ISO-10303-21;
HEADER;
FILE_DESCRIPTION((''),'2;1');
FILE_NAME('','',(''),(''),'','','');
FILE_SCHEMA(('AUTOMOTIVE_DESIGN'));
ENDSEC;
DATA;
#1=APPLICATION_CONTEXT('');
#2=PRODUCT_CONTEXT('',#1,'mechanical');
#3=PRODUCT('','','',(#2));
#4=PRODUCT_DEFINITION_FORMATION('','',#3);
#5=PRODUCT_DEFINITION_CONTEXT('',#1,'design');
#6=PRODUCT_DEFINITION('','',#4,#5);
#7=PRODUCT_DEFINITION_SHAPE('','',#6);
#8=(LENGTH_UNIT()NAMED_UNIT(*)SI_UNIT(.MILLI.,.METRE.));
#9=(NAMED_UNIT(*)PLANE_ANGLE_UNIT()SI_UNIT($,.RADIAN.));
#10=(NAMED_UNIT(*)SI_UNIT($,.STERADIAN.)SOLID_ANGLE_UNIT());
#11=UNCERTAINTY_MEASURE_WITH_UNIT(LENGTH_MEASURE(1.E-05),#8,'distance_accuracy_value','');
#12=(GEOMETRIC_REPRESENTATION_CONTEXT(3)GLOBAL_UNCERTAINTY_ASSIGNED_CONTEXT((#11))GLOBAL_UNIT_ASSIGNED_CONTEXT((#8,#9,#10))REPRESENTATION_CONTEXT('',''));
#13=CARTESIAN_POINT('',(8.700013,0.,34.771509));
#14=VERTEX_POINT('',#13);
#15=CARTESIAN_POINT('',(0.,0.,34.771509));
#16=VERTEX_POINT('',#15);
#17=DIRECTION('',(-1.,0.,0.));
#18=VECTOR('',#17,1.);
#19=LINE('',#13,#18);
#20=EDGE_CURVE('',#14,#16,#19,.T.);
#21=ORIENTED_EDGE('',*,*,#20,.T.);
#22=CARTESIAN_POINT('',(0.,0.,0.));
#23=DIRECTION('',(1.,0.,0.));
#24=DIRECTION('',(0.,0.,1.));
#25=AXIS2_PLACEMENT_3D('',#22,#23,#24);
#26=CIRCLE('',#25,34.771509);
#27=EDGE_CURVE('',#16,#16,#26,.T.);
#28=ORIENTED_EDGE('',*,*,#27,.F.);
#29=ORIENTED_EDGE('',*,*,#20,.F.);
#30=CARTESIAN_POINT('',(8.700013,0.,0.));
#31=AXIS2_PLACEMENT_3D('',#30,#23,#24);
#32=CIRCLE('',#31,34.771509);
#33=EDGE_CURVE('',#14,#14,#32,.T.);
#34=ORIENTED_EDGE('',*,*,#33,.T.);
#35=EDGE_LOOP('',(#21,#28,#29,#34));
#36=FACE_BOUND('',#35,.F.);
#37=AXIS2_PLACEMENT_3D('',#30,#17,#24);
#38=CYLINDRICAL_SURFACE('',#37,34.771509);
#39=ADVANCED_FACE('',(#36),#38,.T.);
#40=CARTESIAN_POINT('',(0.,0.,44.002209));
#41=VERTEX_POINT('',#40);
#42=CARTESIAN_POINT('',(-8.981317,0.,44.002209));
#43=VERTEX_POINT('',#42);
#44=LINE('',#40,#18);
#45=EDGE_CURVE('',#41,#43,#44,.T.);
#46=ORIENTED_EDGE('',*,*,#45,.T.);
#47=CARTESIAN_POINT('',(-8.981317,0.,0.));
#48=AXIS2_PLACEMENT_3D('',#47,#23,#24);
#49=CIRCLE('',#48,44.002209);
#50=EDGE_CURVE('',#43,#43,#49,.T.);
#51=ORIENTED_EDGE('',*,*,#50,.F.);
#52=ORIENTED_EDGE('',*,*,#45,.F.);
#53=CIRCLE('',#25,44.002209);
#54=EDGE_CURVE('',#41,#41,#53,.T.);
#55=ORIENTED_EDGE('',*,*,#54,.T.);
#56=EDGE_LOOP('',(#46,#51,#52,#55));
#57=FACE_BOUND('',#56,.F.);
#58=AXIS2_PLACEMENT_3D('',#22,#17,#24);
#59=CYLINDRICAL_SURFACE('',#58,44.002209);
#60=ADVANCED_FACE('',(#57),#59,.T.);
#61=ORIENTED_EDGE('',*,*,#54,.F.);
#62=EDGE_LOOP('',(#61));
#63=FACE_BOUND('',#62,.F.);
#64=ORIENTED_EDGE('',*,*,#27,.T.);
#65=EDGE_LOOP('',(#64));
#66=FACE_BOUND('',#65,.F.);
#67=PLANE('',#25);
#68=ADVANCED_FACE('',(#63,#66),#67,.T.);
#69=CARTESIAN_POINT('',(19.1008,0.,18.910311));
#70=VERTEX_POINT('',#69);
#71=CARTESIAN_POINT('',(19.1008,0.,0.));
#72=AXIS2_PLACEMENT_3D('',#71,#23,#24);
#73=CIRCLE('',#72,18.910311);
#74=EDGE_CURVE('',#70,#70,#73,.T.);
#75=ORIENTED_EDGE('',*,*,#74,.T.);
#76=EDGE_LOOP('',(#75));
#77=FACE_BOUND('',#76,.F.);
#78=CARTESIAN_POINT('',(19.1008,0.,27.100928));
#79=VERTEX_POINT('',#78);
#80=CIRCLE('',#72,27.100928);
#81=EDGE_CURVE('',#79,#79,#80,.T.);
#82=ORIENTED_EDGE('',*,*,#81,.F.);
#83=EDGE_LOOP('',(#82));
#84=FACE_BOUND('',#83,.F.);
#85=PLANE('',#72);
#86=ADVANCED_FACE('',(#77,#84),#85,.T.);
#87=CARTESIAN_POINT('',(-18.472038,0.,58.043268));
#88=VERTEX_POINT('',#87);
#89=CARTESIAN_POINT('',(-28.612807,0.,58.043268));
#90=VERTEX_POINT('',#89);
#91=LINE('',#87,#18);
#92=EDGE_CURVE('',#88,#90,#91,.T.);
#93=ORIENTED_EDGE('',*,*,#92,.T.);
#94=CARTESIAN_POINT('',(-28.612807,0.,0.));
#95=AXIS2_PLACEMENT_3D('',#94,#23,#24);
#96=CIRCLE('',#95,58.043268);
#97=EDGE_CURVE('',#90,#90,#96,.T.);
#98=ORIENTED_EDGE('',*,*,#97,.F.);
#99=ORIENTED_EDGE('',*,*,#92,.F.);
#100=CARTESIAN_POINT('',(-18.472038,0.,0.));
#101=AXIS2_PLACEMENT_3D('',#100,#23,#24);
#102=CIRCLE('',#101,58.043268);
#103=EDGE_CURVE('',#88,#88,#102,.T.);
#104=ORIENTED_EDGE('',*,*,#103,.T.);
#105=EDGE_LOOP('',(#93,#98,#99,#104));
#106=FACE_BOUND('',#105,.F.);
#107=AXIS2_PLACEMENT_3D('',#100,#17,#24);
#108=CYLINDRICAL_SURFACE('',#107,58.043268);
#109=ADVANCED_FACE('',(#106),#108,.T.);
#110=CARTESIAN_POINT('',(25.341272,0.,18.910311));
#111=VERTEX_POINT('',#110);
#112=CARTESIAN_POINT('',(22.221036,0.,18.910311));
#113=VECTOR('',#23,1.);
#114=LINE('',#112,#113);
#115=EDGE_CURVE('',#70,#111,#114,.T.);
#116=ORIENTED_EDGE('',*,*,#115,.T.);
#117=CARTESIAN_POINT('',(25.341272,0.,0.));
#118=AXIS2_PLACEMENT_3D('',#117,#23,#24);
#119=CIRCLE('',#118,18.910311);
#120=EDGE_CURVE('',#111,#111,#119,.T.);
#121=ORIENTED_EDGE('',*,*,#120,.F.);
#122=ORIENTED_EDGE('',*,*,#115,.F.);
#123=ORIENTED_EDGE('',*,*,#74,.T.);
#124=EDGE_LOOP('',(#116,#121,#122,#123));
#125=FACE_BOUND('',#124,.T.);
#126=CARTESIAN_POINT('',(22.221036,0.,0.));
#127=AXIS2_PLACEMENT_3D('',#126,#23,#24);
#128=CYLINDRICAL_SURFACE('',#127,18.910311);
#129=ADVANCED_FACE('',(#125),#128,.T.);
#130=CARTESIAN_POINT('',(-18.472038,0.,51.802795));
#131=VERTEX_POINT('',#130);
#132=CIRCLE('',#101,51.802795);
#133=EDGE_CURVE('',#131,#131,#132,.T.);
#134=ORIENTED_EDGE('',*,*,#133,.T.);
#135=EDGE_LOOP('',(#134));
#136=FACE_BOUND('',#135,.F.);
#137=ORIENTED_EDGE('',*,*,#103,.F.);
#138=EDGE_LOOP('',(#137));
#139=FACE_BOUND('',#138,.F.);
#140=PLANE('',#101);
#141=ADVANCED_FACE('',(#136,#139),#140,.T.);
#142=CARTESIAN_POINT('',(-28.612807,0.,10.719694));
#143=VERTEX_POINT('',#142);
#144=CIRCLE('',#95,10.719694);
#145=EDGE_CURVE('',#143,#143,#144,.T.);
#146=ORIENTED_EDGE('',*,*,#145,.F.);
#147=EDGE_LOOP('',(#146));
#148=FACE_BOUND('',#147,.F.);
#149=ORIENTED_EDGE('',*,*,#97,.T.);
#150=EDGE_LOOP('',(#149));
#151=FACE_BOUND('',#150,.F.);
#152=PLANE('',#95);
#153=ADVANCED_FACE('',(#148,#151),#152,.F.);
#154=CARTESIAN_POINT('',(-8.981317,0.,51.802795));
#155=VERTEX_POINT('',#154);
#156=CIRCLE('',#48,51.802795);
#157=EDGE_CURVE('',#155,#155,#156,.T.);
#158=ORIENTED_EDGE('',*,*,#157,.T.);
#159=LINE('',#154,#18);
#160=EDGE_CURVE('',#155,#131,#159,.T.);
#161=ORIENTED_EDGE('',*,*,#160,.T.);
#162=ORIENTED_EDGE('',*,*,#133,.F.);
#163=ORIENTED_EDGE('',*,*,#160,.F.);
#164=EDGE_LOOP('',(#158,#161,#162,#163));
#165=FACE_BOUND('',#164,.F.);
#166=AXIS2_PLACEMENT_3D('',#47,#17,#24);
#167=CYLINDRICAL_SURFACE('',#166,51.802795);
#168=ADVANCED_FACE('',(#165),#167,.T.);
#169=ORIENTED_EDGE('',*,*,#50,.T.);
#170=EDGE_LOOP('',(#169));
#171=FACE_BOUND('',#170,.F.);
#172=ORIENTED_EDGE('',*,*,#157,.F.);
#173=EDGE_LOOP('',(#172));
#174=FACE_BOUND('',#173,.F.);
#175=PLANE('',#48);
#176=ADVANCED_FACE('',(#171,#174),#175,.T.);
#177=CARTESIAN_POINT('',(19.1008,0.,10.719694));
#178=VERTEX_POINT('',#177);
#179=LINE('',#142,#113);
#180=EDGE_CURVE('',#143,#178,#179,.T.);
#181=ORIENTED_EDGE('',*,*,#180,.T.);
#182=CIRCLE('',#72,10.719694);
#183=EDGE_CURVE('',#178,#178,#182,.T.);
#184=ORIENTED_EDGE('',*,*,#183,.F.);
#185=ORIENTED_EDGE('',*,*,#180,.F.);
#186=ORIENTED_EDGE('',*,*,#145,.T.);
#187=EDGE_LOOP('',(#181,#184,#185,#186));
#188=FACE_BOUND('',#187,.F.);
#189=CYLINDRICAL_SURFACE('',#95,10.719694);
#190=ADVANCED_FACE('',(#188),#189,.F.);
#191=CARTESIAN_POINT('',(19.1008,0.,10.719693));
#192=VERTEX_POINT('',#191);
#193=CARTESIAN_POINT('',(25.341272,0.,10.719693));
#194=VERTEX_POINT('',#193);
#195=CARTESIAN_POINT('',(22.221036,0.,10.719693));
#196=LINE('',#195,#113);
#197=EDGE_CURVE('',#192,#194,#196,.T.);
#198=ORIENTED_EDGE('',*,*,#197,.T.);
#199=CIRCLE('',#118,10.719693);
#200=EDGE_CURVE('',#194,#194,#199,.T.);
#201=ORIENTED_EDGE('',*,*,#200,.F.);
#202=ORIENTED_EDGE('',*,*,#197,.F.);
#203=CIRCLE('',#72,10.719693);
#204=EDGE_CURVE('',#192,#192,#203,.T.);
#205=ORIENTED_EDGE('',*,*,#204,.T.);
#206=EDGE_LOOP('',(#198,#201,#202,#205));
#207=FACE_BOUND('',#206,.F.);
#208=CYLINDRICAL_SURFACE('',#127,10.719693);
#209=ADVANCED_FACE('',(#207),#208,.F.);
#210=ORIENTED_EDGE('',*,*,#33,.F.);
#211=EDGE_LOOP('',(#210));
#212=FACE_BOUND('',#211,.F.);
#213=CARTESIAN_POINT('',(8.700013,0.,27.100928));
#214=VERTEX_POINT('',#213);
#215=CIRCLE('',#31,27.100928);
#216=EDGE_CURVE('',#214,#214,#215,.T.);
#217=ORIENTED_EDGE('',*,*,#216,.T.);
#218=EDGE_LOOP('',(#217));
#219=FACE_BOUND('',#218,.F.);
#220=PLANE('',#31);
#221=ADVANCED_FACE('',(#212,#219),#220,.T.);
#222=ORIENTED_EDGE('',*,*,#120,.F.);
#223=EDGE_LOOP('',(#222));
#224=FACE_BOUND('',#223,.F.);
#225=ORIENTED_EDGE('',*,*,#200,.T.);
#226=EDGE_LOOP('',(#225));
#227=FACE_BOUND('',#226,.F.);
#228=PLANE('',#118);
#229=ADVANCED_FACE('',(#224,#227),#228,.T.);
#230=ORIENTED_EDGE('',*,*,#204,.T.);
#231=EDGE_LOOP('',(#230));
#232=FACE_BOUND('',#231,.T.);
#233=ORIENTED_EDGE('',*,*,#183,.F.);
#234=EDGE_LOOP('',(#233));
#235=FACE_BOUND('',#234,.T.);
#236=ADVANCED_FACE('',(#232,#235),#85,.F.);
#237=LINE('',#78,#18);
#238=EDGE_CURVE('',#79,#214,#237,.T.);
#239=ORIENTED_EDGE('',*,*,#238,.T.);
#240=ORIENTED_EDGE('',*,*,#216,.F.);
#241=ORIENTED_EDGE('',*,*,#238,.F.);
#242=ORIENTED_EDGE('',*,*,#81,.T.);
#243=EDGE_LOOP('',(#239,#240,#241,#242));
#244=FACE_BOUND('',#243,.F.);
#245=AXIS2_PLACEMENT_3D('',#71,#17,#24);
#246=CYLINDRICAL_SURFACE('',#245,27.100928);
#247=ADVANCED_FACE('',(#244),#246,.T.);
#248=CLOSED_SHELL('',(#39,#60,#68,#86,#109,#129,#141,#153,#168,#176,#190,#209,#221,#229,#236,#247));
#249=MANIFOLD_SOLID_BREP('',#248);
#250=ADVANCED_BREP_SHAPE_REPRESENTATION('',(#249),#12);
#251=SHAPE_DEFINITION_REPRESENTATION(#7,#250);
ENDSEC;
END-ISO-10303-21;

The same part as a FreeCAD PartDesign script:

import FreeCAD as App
import Part
import Sketcher
from FreeCAD import Vector
Q = App.Units.Quantity

doc = App.newDocument("Part")
body = doc.addObject("PartDesign::Body", "Body")

sketch1 = body.newObject("Sketcher::SketchObject", "Sketch")
sketch1.AttachmentSupport = (doc.getObject("XZ_Plane"), [""])
sketch1.MapMode = "FlatFace"
sketch1.addGeometry(Part.LineSegment(Vector(-28.612807, 58.043268, 0), Vector(-28.612807, 10.719694, 0)), False)
sketch1.addGeometry(Part.LineSegment(Vector(-28.612807, 10.719694, 0), Vector(19.1008, 10.719694, 0)), False)
sketch1.addGeometry(Part.LineSegment(Vector(19.1008, 10.719693, 0), Vector(19.1008, 10.719694, 0)), False)
sketch1.addGeometry(Part.LineSegment(Vector(19.1008, 10.719693, 0), Vector(25.341272, 10.719693, 0)), False)
sketch1.addGeometry(Part.LineSegment(Vector(25.341272, 10.719693, 0), Vector(25.341272, 18.910311, 0)), False)
sketch1.addGeometry(Part.LineSegment(Vector(25.341272, 18.910311, 0), Vector(19.1008, 18.910311, 0)), False)
sketch1.addGeometry(Part.LineSegment(Vector(19.1008, 18.910311, 0), Vector(19.1008, 27.100928, 0)), False)
sketch1.addGeometry(Part.LineSegment(Vector(19.1008, 27.100928, 0), Vector(8.700013, 27.100928, 0)), False)
sketch1.addGeometry(Part.LineSegment(Vector(8.700013, 27.100928, 0), Vector(8.700013, 34.771509, 0)), False)
sketch1.addGeometry(Part.LineSegment(Vector(8.700013, 34.771509, 0), Vector(0, 34.771509, 0)), False)
sketch1.addGeometry(Part.LineSegment(Vector(0, 34.771509, 0), Vector(0, 44.002209, 0)), False)
sketch1.addGeometry(Part.LineSegment(Vector(0, 44.002209, 0), Vector(-8.981317, 44.002209, 0)), False)
sketch1.addGeometry(Part.LineSegment(Vector(-8.981317, 44.002209, 0), Vector(-8.981317, 51.802795, 0)), False)
sketch1.addGeometry(Part.LineSegment(Vector(-8.981317, 51.802795, 0), Vector(-18.472038, 51.802795, 0)), False)
sketch1.addGeometry(Part.LineSegment(Vector(-18.472038, 51.802795, 0), Vector(-18.472038, 58.043268, 0)), False)
sketch1.addGeometry(Part.LineSegment(Vector(-18.472038, 58.043268, 0), Vector(-28.612807, 58.043268, 0)), False)
sketch1.addConstraint(Sketcher.Constraint("Coincident", 0, 2, 1, 1))
sketch1.addConstraint(Sketcher.Constraint("Coincident", 1, 2, 2, 1))
sketch1.addConstraint(Sketcher.Constraint("Coincident", 2, 2, 3, 1))
sketch1.addConstraint(Sketcher.Constraint("Coincident", 3, 2, 4, 1))
sketch1.addConstraint(Sketcher.Constraint("Coincident", 4, 2, 5, 1))
sketch1.addConstraint(Sketcher.Constraint("Coincident", 5, 2, 6, 1))
sketch1.addConstraint(Sketcher.Constraint("Coincident", 6, 2, 7, 1))
sketch1.addConstraint(Sketcher.Constraint("Coincident", 7, 2, 8, 1))
sketch1.addConstraint(Sketcher.Constraint("Coincident", 8, 2, 9, 1))
sketch1.addConstraint(Sketcher.Constraint("Coincident", 9, 2, 10, 1))
sketch1.addConstraint(Sketcher.Constraint("Coincident", 10, 2, 11, 1))
sketch1.addConstraint(Sketcher.Constraint("Coincident", 11, 2, 12, 1))
sketch1.addConstraint(Sketcher.Constraint("Coincident", 12, 2, 13, 1))
sketch1.addConstraint(Sketcher.Constraint("Coincident", 13, 2, 14, 1))
sketch1.addConstraint(Sketcher.Constraint("Coincident", 14, 2, 15, 1))
sketch1.addConstraint(Sketcher.Constraint("Coincident", 15, 2, 0, 1))
sketch1.addConstraint(Sketcher.Constraint("Vertical", 0))
sketch1.addConstraint(Sketcher.Constraint("Horizontal", 1))
sketch1.addConstraint(Sketcher.Constraint("Horizontal", 2))
sketch1.addConstraint(Sketcher.Constraint("Horizontal", 3))
sketch1.addConstraint(Sketcher.Constraint("Vertical", 4))
sketch1.addConstraint(Sketcher.Constraint("Horizontal", 5))
sketch1.addConstraint(Sketcher.Constraint("Vertical", 6))
sketch1.addConstraint(Sketcher.Constraint("Horizontal", 7))
sketch1.addConstraint(Sketcher.Constraint("Vertical", 8))
sketch1.addConstraint(Sketcher.Constraint("Horizontal", 9))
sketch1.addConstraint(Sketcher.Constraint("Vertical", 10))
sketch1.addConstraint(Sketcher.Constraint("Horizontal", 11))
sketch1.addConstraint(Sketcher.Constraint("Vertical", 12))
sketch1.addConstraint(Sketcher.Constraint("Horizontal", 13))
sketch1.addConstraint(Sketcher.Constraint("Vertical", 14))
sketch1.addConstraint(Sketcher.Constraint("Horizontal", 15))
sketch1.addConstraint(Sketcher.Constraint("PointOnObject", 9, 2, -2))
sketch1.addConstraint(Sketcher.Constraint("Vertical", 2, 2, 5, 2))
sketch1.addConstraint(Sketcher.Constraint("Equal", 4, 6))
sketch1.addConstraint(Sketcher.Constraint("Equal", 5, 14))
sketch1.addConstraint(Sketcher.Constraint("DistanceY", 10, 1, 10, 2, Q("9.2307 mm")))
sketch1.addConstraint(Sketcher.Constraint("DistanceX", 13, 2, 13, 1, Q("9.490721 mm")))
sketch1.addConstraint(Sketcher.Constraint("DistanceX", 15, 2, 15, 1, Q("10.140769 mm")))
sketch1.addConstraint(Sketcher.Constraint("DistanceY", 8, 1, 8, 2, Q("7.670581 mm")))
sketch1.addConstraint(Sketcher.Constraint("DistanceX", -1, 1, 1, 2, Q("19.1008 mm")))
sketch1.addConstraint(Sketcher.Constraint("DistanceX", -1, 1, 2, 2, Q("19.1008 mm")))
sketch1.addConstraint(Sketcher.Constraint("DistanceY", 5, 2, 8, 2, Q("15.861199 mm")))
sketch1.addConstraint(Sketcher.Constraint("DistanceX", 1, 1, 1, 2, Q("47.713607 mm")))
sketch1.addConstraint(Sketcher.Constraint("DistanceX", 3, 1, 3, 2, Q("6.240472 mm")))
sketch1.addConstraint(Sketcher.Constraint("DistanceX", 7, 2, 7, 1, Q("10.400787 mm")))
sketch1.addConstraint(Sketcher.Constraint("DistanceY", 0, 2, 0, 1, Q("47.323574 mm")))
sketch1.addConstraint(Sketcher.Constraint("DistanceY", -1, 1, 4, 2, Q("18.910311 mm")))
revolution = body.newObject("PartDesign::Revolution", "Revolution")
revolution.Profile = sketch1
revolution.ReferenceAxis = (sketch1, ["H_Axis"])
revolution.Angle = 360

doc.recompute()
